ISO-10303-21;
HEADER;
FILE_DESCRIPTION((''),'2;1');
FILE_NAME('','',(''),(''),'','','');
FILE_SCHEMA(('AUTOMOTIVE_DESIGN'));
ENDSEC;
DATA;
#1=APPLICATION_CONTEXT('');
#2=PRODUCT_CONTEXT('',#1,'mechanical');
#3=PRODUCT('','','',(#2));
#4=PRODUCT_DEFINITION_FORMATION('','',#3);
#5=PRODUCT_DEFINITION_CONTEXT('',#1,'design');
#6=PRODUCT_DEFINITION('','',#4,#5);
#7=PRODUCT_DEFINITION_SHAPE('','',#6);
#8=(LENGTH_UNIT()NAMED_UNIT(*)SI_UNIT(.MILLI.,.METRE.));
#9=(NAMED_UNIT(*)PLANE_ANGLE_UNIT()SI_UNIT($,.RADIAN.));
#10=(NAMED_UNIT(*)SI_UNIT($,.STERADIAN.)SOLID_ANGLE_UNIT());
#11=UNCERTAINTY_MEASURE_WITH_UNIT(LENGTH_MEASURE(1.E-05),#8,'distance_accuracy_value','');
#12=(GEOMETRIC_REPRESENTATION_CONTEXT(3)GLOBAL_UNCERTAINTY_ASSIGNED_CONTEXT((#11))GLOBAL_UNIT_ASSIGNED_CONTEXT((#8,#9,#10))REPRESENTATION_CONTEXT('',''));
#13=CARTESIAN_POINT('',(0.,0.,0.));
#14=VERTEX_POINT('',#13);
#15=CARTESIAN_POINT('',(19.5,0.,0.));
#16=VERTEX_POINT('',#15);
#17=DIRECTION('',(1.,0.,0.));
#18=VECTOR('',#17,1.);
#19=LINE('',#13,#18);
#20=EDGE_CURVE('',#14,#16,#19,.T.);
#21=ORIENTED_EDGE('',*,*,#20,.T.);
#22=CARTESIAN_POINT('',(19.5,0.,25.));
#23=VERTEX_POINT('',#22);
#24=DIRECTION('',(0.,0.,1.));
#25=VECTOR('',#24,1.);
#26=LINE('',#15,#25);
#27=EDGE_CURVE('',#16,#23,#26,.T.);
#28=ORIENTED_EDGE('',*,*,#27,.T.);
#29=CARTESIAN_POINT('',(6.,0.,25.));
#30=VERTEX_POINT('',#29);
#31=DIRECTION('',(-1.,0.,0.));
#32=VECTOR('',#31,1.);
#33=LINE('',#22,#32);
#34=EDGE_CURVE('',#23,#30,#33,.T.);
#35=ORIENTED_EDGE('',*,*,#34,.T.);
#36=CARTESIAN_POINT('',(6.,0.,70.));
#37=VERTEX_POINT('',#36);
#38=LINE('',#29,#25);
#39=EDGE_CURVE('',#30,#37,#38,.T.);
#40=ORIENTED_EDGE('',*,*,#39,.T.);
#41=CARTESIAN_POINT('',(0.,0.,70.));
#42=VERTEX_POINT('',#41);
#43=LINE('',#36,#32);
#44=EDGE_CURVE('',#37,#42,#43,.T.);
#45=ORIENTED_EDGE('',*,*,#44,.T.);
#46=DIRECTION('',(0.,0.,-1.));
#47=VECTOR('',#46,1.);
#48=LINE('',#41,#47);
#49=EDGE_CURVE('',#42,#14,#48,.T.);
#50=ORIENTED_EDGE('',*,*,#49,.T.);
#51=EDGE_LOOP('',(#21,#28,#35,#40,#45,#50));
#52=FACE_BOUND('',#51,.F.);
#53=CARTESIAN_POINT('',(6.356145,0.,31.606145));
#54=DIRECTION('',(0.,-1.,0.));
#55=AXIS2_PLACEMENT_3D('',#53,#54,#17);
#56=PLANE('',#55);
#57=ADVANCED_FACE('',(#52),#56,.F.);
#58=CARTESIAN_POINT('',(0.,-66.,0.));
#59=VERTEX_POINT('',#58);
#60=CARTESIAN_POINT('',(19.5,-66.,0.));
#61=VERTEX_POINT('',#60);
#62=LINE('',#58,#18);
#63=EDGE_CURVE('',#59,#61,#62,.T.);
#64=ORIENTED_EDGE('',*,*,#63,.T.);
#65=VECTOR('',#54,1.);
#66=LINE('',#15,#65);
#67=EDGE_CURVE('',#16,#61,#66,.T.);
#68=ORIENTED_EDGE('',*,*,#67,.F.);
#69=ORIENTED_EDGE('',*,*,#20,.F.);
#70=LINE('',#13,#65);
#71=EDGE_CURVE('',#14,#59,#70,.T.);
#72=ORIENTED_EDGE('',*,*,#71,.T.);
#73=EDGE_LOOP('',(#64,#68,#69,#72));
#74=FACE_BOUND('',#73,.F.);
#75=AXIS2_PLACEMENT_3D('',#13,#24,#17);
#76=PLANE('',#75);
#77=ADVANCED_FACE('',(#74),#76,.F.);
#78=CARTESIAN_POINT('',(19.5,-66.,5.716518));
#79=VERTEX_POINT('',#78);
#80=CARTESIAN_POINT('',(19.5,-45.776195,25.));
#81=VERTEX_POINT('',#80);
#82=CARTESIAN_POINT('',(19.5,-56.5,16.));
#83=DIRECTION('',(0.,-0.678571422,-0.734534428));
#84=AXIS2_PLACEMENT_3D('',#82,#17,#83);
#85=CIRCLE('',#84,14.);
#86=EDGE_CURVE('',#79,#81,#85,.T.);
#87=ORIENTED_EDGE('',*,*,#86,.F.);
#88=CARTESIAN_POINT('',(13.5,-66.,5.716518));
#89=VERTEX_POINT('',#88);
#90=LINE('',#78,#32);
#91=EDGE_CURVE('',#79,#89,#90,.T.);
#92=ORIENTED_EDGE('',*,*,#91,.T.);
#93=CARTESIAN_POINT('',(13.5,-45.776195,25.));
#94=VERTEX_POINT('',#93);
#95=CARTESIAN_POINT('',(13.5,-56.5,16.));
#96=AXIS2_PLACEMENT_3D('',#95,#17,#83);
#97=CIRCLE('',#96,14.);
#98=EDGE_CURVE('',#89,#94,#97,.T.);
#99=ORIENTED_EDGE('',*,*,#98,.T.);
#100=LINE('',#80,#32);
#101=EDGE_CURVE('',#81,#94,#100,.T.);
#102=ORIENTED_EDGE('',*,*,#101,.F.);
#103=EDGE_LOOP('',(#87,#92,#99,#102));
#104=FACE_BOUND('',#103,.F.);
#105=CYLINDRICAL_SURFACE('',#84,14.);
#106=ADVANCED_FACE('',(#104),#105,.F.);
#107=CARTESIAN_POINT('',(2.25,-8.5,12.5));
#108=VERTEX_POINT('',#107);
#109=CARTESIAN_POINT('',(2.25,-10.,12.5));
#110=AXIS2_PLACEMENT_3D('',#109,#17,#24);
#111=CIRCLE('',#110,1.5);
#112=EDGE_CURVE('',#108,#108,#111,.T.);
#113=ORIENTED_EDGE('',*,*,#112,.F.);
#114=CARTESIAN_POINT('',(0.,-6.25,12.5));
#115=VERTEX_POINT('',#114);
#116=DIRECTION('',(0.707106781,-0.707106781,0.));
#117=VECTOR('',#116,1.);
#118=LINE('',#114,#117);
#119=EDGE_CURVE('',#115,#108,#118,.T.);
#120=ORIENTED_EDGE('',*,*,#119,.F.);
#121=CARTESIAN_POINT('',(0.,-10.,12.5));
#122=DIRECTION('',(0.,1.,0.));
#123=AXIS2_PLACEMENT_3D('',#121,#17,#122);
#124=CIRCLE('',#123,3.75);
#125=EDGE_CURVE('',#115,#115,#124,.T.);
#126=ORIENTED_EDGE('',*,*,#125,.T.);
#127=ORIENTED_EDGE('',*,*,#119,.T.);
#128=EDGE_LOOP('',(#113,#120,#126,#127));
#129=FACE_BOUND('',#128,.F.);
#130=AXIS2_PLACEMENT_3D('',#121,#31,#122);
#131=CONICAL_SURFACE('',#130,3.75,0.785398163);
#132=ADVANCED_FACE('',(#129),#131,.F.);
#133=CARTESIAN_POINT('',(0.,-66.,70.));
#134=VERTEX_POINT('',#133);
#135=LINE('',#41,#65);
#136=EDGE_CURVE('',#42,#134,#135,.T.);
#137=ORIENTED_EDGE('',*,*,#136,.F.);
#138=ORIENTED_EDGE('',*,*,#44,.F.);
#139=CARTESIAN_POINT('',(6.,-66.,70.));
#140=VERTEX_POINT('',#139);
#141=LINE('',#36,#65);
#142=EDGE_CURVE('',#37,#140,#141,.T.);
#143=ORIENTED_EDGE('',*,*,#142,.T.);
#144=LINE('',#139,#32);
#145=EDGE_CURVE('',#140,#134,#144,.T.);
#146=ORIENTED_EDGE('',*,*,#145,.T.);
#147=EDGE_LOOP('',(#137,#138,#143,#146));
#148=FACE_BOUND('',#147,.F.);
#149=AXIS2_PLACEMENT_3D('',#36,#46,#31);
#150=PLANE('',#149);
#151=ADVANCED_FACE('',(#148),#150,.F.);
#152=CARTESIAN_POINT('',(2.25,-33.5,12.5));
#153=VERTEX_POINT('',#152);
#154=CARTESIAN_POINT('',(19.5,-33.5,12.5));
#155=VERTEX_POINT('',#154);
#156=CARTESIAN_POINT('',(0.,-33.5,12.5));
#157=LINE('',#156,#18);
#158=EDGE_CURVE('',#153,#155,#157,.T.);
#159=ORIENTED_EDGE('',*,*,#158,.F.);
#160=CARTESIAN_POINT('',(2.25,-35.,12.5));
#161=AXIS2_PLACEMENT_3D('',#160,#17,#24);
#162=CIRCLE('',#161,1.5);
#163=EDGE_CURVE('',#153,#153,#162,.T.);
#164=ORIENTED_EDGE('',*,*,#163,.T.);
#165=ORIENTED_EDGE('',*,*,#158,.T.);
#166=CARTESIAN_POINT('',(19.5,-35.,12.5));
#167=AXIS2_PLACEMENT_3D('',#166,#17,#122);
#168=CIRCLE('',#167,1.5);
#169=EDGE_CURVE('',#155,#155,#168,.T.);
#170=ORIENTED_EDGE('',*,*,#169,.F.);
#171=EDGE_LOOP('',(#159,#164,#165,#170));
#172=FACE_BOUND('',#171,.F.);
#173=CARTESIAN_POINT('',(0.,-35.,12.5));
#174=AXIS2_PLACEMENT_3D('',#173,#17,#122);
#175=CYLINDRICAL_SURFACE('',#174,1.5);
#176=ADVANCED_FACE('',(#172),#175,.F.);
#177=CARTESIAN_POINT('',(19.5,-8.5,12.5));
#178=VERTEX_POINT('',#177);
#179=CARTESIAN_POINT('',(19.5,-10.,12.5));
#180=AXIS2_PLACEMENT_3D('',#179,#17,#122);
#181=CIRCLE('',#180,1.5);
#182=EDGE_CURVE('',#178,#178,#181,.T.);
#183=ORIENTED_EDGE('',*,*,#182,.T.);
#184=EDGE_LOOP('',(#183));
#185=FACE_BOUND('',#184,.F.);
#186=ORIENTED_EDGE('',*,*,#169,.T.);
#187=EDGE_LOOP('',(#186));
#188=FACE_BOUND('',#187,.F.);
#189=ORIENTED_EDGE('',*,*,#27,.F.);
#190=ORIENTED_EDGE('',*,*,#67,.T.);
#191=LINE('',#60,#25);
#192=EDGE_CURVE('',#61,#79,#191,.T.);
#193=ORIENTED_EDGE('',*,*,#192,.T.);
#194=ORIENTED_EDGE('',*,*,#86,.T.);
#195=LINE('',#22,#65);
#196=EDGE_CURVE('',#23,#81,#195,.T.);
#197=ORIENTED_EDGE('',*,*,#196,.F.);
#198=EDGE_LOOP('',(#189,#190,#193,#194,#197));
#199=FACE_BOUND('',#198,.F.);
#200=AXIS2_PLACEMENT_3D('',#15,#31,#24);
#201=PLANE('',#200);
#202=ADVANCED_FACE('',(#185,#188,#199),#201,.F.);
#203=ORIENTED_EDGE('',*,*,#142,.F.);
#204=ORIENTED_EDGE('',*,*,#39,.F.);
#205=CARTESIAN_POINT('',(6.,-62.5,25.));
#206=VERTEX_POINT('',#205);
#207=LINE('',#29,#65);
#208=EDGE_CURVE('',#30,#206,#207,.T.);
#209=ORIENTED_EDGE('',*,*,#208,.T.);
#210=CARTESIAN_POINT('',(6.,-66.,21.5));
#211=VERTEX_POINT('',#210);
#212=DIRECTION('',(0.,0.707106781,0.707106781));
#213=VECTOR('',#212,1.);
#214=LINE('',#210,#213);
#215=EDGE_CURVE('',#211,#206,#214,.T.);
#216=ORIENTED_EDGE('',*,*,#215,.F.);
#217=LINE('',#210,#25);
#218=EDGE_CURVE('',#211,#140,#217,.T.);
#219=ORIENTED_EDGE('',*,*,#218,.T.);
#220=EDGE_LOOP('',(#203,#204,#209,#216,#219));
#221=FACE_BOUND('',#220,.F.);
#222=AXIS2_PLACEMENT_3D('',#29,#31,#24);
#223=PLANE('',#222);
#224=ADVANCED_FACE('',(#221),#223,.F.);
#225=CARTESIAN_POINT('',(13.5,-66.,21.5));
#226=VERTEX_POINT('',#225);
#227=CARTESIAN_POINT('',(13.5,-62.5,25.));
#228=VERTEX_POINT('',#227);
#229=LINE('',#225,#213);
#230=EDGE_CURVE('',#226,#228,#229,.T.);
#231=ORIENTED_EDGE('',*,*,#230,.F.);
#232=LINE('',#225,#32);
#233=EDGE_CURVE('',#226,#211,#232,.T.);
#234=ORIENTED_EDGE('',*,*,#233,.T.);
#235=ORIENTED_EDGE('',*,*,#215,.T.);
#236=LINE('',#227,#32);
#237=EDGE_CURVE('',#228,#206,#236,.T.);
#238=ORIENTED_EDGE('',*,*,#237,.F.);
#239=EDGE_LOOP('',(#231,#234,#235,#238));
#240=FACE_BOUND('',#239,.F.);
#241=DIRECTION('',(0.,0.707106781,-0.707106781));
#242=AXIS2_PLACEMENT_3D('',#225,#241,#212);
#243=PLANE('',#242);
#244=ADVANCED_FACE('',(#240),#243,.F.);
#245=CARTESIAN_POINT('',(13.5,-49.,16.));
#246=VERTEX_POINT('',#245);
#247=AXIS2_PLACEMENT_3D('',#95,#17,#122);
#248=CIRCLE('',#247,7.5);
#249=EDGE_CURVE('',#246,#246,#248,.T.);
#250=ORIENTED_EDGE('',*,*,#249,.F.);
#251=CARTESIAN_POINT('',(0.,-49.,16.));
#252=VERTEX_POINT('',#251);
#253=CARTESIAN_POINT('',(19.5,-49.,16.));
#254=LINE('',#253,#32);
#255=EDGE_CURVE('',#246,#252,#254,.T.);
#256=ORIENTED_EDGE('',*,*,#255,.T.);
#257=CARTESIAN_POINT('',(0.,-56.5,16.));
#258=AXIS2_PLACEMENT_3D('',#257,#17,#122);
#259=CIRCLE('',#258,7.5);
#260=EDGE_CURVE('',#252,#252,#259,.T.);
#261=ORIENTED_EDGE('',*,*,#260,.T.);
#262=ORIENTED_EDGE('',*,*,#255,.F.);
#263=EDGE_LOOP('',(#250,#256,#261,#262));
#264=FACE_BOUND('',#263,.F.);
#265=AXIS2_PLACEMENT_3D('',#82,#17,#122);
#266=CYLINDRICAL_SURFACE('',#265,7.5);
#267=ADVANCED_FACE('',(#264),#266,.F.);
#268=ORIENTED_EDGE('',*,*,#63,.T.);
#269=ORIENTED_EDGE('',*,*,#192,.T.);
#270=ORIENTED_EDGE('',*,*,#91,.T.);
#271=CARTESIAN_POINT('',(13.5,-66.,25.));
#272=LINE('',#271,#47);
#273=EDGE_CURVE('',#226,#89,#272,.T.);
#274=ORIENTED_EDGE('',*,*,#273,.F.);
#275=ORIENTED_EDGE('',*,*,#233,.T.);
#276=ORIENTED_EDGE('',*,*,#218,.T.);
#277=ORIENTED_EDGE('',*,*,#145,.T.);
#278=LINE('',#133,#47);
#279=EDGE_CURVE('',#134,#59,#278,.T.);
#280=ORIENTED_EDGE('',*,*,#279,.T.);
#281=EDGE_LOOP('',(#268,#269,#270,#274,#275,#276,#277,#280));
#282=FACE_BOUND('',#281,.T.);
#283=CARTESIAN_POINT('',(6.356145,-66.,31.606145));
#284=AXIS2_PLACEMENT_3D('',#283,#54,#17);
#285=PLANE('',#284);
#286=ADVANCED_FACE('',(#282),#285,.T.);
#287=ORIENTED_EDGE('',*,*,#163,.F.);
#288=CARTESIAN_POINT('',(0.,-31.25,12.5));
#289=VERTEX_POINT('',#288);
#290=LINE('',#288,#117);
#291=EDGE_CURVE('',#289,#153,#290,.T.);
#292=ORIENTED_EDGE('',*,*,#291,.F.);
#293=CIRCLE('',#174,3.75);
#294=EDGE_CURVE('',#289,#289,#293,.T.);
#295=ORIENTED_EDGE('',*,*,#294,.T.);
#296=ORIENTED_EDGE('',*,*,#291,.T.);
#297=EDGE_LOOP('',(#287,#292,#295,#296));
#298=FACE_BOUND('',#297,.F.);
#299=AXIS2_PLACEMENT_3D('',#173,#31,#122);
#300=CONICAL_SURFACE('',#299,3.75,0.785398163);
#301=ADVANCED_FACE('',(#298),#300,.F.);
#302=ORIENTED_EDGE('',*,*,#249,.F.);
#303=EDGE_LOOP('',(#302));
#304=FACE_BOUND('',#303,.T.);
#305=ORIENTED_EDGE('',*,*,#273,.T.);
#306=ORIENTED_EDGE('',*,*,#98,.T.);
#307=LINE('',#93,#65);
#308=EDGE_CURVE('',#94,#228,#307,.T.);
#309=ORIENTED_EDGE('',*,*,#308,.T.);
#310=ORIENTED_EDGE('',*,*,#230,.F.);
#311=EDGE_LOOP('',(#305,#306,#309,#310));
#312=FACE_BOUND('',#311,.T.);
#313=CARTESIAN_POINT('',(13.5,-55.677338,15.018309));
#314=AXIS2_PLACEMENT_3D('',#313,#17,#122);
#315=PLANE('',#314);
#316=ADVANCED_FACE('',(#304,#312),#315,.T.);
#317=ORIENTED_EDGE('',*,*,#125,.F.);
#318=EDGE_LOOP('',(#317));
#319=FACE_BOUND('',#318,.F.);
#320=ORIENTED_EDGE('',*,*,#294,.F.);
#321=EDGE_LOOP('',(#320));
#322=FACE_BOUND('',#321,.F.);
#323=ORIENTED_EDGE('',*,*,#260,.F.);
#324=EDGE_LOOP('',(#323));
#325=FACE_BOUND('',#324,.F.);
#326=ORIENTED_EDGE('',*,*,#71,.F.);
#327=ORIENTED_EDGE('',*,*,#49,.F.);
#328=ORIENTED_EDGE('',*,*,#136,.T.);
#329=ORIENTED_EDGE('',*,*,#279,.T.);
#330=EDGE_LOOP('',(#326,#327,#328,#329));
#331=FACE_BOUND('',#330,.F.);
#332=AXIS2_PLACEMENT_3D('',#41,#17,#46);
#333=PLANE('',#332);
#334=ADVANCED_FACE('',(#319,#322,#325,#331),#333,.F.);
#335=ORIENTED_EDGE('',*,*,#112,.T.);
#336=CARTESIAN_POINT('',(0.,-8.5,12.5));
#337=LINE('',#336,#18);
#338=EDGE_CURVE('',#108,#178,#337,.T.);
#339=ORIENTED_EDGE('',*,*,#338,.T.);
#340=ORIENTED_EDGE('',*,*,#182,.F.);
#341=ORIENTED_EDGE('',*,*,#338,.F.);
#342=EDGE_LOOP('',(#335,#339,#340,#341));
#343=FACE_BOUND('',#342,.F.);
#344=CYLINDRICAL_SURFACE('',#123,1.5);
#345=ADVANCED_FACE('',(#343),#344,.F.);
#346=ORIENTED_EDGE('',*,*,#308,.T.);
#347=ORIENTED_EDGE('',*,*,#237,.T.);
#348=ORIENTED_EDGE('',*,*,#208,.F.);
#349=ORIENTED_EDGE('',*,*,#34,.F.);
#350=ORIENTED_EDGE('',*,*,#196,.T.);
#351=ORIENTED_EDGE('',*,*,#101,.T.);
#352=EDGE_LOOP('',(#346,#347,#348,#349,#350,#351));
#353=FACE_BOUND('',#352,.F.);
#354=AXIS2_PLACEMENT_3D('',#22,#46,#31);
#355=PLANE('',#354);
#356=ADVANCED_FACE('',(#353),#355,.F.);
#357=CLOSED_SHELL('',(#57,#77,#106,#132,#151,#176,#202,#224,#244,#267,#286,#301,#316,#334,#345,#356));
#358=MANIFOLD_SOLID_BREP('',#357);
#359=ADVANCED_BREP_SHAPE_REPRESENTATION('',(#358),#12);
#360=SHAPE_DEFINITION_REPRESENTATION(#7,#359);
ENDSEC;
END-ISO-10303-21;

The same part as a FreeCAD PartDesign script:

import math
import FreeCAD as App
import Part
import Sketcher
from FreeCAD import Vector
Q = App.Units.Quantity

doc = App.newDocument("Part")
params = doc.addObject("Spreadsheet::Sheet", "Params")
for row, (alias, value) in enumerate([
    ("sketch1_width", "6 mm"),
    ("sketch1_height", "70 mm"),
    ("sketch1_height2", "25 mm"),
    ("sketch1_width2", "19.5 mm"),
    ("pad1_length", "66 mm"),
    ("sketch2_diameter", "15 mm"),
    ("sketch3_radius", "14 mm"),
    ("pocket2_length", "6 mm"),
    ("sketch4_width", "3.5 mm"),
    ("pocket3_length", "7.5 mm"),
    ("sketch5_diameter", "3 mm"),
    ("hole_diameter", "3 mm"),
    ("hole_csink_diameter", "7.5 mm"),
], start=1):
    params.set(f"A{row}", alias)
    params.set(f"B{row}", "=" + value)
    params.setAlias(f"B{row}", alias)

body = doc.addObject("PartDesign::Body", "Body")

# Sketch on XZ plane
sketch1 = body.newObject("Sketcher::SketchObject", "Sketch")
sketch1.AttachmentSupport = (doc.getObject("XZ_Plane"), [""])
sketch1.MapMode = "FlatFace"
sketch1.addGeometry([
    Part.LineSegment(Vector(0, 70, 0), Vector(0, 0, 0)),  # 0
    Part.LineSegment(Vector(0, 0, 0), Vector(19.5, 0, 0)),  # 1
    Part.LineSegment(Vector(19.5, 0, 0), Vector(19.5, 25, 0)),  # 2
    Part.LineSegment(Vector(19.5, 25, 0), Vector(6, 25, 0)),  # 3
    Part.LineSegment(Vector(6, 25, 0), Vector(6, 70, 0)),  # 4
    Part.LineSegment(Vector(6, 70, 0), Vector(0, 70, 0)),  # 5
], False)
sketch1.addConstraint([
    Sketcher.Constraint("Coincident", 0, 2, 1, 1),
    Sketcher.Constraint("Coincident", 1, 2, 2, 1),
    Sketcher.Constraint("Coincident", 2, 2, 3, 1),
    Sketcher.Constraint("Coincident", 3, 2, 4, 1),
    Sketcher.Constraint("Coincident", 4, 2, 5, 1),
    Sketcher.Constraint("Coincident", 5, 2, 0, 1),
    Sketcher.Constraint("Vertical", 0),
    Sketcher.Constraint("Horizontal", 1),
    Sketcher.Constraint("Vertical", 2),
    Sketcher.Constraint("Horizontal", 3),
    Sketcher.Constraint("Vertical", 4),
    Sketcher.Constraint("Horizontal", 5),
    Sketcher.Constraint("Coincident", 0, 2, -1, 1),
    Sketcher.Constraint("DistanceX", 5, 2, 5, 1, Q("6 mm")),
    Sketcher.Constraint("DistanceY", 0, 2, 0, 1, Q("70 mm")),
    Sketcher.Constraint("DistanceY", 2, 1, 2, 2, Q("25 mm")),
    Sketcher.Constraint("DistanceX", 1, 1, 1, 2, Q("19.5 mm")),
])
sketch1.setExpression("Constraints[13]", "Params.sketch1_width")
sketch1.setExpression("Constraints[14]", "Params.sketch1_height")
sketch1.setExpression("Constraints[15]", "Params.sketch1_height2")
sketch1.setExpression("Constraints[16]", "Params.sketch1_width2")
pad1 = body.newObject("PartDesign::Pad", "Pad")
pad1.Profile = sketch1
pad1.setExpression("Length", "Params.pad1_length")

# Sketch on YZ plane
sketch2 = body.newObject("Sketcher::SketchObject", "Sketch001")
sketch2.AttachmentSupport = (doc.getObject("YZ_Plane"), [""])
sketch2.MapMode = "FlatFace"
sketch2.AttachmentOffset = App.Placement(Vector(0, 0, 19.5), App.Rotation())
sketch2.addGeometry(Part.Circle(Vector(-56.5, 16, 0), Vector(0, 0, 1), 7.5), False)
sketch2.addConstraint([
    Sketcher.Constraint("Diameter", 0, Q("15 mm")),
    Sketcher.Constraint("DistanceY", -1, 1, 0, 3, Q("16 mm")),
    Sketcher.Constraint("DistanceX", 0, 3, -1, 1, Q("56.5 mm")),
])
sketch2.setExpression("Constraints[0]", "Params.sketch2_diameter")
pocket1 = body.newObject("PartDesign::Pocket", "Pocket")
pocket1.Profile = sketch2
pocket1.Type = "ThroughAll"

# Sketch on YZ plane
sketch3 = body.newObject("Sketcher::SketchObject", "Sketch002")
sketch3.AttachmentSupport = (doc.getObject("YZ_Plane"), [""])
sketch3.MapMode = "FlatFace"
sketch3.AttachmentOffset = App.Placement(Vector(0, 0, 19.5), App.Rotation())
sketch3.addGeometry([
    Part.LineSegment(Vector(-45.776195, 25, 0), Vector(-66, 25, 0)),
    Part.LineSegment(Vector(-66, 25, 0), Vector(-66, 5.716518, 0)),
    Part.ArcOfCircle(Part.Circle(Vector(-56.5, 16, 0), Vector(0, 0, 1), 14), math.radians(-132.73211), math.radians(40.005201)),
], False)
sketch3.addConstraint([
    Sketcher.Constraint("Coincident", 0, 2, 1, 1),
    Sketcher.Constraint("Coincident", 1, 2, 2, 1),
    Sketcher.Constraint("Coincident", 2, 2, 0, 1),
    Sketcher.Constraint("Horizontal", 0),
    Sketcher.Constraint("Vertical", 1),
    Sketcher.Constraint("Radius", 2, Q("14 mm")),
    Sketcher.Constraint("DistanceY", -1, 1, 2, 3, Q("16 mm")),
    Sketcher.Constraint("DistanceX", 0, 2, -1, 1, Q("66 mm")),
    Sketcher.Constraint("DistanceY", -1, 1, 0, 2, Q("25 mm")),
    Sketcher.Constraint("DistanceX", 2, 3, -1, 1, Q("56.5 mm")),
])
sketch3.setExpression("Constraints[5]", "Params.sketch3_radius")
pocket2 = body.newObject("PartDesign::Pocket", "Pocket001")
pocket2.Profile = sketch3
pocket2.setExpression("Length", "Params.pocket2_length")

# Sketch on YZ plane
sketch4 = body.newObject("Sketcher::SketchObject", "Sketch003")
sketch4.AttachmentSupport = (doc.getObject("YZ_Plane"), [""])
sketch4.MapMode = "FlatFace"
sketch4.AttachmentOffset = App.Placement(Vector(0, 0, 13.5), App.Rotation())
sketch4.addGeometry([
    Part.LineSegment(Vector(-62.5, 25, 0), Vector(-66, 25, 0)),
    Part.LineSegment(Vector(-66, 25, 0), Vector(-66, 21.5, 0)),
    Part.LineSegment(Vector(-66, 21.5, 0), Vector(-62.5, 25, 0)),
], False)
sketch4.addConstraint([
    Sketcher.Constraint("Coincident", 0, 2, 1, 1),
    Sketcher.Constraint("Coincident", 1, 2, 2, 1),
    Sketcher.Constraint("Coincident", 2, 2, 0, 1),
    Sketcher.Constraint("Horizontal", 0),
    Sketcher.Constraint("Vertical", 1),
    Sketcher.Constraint("Equal", 0, 1),
    Sketcher.Constraint("DistanceX", 0, 2, 0, 1, Q("3.5 mm")),
    Sketcher.Constraint("DistanceX", 0, 2, -1, 1, Q("66 mm")),
    Sketcher.Constraint("DistanceY", -1, 1, 0, 2, Q("25 mm")),
])
sketch4.setExpression("Constraints[6]", "Params.sketch4_width")
pocket3 = body.newObject("PartDesign::Pocket", "Pocket002")
pocket3.Profile = sketch4
pocket3.setExpression("Length", "Params.pocket3_length")

# Sketch on YZ plane
sketch5 = body.newObject("Sketcher::SketchObject", "Sketch004")
sketch5.AttachmentSupport = (doc.getObject("YZ_Plane"), [""])
sketch5.MapMode = "FlatFace"
sketch5.addGeometry([
    Part.Circle(Vector(-10, 12.5, 0), Vector(0, 0, 1), 1.5),
    Part.Circle(Vector(-35, 12.5, 0), Vector(0, 0, 1), 1.5),
], False)
sketch5.addConstraint([
    Sketcher.Constraint("Equal", 0, 1),
    Sketcher.Constraint("Horizontal", 0, 3, 1, 3),
    Sketcher.Constraint("Diameter", 0, Q("3 mm")),
    Sketcher.Constraint("DistanceX", 0, 3, -1, 1, Q("10 mm")),
    Sketcher.Constraint("DistanceX", 1, 3, -1, 1, Q("35 mm")),
    Sketcher.Constraint("DistanceY", -1, 1, 0, 3, Q("12.5 mm")),
])
sketch5.setExpression("Constraints[2]", "Params.sketch5_diameter")
doc.recompute()
hole = body.newObject("PartDesign::Hole", "Hole")
hole.Profile = sketch5
hole.ThreadType = "None"
hole.setExpression("Diameter", "Params.hole_diameter")
hole.DepthType = "ThroughAll"
hole.HoleCutType = "Countersink"
hole.setExpression("HoleCutDiameter", "Params.hole_csink_diameter")
hole.HoleCutCountersinkAngle = 90
hole.Reversed = True

doc.recompute()
